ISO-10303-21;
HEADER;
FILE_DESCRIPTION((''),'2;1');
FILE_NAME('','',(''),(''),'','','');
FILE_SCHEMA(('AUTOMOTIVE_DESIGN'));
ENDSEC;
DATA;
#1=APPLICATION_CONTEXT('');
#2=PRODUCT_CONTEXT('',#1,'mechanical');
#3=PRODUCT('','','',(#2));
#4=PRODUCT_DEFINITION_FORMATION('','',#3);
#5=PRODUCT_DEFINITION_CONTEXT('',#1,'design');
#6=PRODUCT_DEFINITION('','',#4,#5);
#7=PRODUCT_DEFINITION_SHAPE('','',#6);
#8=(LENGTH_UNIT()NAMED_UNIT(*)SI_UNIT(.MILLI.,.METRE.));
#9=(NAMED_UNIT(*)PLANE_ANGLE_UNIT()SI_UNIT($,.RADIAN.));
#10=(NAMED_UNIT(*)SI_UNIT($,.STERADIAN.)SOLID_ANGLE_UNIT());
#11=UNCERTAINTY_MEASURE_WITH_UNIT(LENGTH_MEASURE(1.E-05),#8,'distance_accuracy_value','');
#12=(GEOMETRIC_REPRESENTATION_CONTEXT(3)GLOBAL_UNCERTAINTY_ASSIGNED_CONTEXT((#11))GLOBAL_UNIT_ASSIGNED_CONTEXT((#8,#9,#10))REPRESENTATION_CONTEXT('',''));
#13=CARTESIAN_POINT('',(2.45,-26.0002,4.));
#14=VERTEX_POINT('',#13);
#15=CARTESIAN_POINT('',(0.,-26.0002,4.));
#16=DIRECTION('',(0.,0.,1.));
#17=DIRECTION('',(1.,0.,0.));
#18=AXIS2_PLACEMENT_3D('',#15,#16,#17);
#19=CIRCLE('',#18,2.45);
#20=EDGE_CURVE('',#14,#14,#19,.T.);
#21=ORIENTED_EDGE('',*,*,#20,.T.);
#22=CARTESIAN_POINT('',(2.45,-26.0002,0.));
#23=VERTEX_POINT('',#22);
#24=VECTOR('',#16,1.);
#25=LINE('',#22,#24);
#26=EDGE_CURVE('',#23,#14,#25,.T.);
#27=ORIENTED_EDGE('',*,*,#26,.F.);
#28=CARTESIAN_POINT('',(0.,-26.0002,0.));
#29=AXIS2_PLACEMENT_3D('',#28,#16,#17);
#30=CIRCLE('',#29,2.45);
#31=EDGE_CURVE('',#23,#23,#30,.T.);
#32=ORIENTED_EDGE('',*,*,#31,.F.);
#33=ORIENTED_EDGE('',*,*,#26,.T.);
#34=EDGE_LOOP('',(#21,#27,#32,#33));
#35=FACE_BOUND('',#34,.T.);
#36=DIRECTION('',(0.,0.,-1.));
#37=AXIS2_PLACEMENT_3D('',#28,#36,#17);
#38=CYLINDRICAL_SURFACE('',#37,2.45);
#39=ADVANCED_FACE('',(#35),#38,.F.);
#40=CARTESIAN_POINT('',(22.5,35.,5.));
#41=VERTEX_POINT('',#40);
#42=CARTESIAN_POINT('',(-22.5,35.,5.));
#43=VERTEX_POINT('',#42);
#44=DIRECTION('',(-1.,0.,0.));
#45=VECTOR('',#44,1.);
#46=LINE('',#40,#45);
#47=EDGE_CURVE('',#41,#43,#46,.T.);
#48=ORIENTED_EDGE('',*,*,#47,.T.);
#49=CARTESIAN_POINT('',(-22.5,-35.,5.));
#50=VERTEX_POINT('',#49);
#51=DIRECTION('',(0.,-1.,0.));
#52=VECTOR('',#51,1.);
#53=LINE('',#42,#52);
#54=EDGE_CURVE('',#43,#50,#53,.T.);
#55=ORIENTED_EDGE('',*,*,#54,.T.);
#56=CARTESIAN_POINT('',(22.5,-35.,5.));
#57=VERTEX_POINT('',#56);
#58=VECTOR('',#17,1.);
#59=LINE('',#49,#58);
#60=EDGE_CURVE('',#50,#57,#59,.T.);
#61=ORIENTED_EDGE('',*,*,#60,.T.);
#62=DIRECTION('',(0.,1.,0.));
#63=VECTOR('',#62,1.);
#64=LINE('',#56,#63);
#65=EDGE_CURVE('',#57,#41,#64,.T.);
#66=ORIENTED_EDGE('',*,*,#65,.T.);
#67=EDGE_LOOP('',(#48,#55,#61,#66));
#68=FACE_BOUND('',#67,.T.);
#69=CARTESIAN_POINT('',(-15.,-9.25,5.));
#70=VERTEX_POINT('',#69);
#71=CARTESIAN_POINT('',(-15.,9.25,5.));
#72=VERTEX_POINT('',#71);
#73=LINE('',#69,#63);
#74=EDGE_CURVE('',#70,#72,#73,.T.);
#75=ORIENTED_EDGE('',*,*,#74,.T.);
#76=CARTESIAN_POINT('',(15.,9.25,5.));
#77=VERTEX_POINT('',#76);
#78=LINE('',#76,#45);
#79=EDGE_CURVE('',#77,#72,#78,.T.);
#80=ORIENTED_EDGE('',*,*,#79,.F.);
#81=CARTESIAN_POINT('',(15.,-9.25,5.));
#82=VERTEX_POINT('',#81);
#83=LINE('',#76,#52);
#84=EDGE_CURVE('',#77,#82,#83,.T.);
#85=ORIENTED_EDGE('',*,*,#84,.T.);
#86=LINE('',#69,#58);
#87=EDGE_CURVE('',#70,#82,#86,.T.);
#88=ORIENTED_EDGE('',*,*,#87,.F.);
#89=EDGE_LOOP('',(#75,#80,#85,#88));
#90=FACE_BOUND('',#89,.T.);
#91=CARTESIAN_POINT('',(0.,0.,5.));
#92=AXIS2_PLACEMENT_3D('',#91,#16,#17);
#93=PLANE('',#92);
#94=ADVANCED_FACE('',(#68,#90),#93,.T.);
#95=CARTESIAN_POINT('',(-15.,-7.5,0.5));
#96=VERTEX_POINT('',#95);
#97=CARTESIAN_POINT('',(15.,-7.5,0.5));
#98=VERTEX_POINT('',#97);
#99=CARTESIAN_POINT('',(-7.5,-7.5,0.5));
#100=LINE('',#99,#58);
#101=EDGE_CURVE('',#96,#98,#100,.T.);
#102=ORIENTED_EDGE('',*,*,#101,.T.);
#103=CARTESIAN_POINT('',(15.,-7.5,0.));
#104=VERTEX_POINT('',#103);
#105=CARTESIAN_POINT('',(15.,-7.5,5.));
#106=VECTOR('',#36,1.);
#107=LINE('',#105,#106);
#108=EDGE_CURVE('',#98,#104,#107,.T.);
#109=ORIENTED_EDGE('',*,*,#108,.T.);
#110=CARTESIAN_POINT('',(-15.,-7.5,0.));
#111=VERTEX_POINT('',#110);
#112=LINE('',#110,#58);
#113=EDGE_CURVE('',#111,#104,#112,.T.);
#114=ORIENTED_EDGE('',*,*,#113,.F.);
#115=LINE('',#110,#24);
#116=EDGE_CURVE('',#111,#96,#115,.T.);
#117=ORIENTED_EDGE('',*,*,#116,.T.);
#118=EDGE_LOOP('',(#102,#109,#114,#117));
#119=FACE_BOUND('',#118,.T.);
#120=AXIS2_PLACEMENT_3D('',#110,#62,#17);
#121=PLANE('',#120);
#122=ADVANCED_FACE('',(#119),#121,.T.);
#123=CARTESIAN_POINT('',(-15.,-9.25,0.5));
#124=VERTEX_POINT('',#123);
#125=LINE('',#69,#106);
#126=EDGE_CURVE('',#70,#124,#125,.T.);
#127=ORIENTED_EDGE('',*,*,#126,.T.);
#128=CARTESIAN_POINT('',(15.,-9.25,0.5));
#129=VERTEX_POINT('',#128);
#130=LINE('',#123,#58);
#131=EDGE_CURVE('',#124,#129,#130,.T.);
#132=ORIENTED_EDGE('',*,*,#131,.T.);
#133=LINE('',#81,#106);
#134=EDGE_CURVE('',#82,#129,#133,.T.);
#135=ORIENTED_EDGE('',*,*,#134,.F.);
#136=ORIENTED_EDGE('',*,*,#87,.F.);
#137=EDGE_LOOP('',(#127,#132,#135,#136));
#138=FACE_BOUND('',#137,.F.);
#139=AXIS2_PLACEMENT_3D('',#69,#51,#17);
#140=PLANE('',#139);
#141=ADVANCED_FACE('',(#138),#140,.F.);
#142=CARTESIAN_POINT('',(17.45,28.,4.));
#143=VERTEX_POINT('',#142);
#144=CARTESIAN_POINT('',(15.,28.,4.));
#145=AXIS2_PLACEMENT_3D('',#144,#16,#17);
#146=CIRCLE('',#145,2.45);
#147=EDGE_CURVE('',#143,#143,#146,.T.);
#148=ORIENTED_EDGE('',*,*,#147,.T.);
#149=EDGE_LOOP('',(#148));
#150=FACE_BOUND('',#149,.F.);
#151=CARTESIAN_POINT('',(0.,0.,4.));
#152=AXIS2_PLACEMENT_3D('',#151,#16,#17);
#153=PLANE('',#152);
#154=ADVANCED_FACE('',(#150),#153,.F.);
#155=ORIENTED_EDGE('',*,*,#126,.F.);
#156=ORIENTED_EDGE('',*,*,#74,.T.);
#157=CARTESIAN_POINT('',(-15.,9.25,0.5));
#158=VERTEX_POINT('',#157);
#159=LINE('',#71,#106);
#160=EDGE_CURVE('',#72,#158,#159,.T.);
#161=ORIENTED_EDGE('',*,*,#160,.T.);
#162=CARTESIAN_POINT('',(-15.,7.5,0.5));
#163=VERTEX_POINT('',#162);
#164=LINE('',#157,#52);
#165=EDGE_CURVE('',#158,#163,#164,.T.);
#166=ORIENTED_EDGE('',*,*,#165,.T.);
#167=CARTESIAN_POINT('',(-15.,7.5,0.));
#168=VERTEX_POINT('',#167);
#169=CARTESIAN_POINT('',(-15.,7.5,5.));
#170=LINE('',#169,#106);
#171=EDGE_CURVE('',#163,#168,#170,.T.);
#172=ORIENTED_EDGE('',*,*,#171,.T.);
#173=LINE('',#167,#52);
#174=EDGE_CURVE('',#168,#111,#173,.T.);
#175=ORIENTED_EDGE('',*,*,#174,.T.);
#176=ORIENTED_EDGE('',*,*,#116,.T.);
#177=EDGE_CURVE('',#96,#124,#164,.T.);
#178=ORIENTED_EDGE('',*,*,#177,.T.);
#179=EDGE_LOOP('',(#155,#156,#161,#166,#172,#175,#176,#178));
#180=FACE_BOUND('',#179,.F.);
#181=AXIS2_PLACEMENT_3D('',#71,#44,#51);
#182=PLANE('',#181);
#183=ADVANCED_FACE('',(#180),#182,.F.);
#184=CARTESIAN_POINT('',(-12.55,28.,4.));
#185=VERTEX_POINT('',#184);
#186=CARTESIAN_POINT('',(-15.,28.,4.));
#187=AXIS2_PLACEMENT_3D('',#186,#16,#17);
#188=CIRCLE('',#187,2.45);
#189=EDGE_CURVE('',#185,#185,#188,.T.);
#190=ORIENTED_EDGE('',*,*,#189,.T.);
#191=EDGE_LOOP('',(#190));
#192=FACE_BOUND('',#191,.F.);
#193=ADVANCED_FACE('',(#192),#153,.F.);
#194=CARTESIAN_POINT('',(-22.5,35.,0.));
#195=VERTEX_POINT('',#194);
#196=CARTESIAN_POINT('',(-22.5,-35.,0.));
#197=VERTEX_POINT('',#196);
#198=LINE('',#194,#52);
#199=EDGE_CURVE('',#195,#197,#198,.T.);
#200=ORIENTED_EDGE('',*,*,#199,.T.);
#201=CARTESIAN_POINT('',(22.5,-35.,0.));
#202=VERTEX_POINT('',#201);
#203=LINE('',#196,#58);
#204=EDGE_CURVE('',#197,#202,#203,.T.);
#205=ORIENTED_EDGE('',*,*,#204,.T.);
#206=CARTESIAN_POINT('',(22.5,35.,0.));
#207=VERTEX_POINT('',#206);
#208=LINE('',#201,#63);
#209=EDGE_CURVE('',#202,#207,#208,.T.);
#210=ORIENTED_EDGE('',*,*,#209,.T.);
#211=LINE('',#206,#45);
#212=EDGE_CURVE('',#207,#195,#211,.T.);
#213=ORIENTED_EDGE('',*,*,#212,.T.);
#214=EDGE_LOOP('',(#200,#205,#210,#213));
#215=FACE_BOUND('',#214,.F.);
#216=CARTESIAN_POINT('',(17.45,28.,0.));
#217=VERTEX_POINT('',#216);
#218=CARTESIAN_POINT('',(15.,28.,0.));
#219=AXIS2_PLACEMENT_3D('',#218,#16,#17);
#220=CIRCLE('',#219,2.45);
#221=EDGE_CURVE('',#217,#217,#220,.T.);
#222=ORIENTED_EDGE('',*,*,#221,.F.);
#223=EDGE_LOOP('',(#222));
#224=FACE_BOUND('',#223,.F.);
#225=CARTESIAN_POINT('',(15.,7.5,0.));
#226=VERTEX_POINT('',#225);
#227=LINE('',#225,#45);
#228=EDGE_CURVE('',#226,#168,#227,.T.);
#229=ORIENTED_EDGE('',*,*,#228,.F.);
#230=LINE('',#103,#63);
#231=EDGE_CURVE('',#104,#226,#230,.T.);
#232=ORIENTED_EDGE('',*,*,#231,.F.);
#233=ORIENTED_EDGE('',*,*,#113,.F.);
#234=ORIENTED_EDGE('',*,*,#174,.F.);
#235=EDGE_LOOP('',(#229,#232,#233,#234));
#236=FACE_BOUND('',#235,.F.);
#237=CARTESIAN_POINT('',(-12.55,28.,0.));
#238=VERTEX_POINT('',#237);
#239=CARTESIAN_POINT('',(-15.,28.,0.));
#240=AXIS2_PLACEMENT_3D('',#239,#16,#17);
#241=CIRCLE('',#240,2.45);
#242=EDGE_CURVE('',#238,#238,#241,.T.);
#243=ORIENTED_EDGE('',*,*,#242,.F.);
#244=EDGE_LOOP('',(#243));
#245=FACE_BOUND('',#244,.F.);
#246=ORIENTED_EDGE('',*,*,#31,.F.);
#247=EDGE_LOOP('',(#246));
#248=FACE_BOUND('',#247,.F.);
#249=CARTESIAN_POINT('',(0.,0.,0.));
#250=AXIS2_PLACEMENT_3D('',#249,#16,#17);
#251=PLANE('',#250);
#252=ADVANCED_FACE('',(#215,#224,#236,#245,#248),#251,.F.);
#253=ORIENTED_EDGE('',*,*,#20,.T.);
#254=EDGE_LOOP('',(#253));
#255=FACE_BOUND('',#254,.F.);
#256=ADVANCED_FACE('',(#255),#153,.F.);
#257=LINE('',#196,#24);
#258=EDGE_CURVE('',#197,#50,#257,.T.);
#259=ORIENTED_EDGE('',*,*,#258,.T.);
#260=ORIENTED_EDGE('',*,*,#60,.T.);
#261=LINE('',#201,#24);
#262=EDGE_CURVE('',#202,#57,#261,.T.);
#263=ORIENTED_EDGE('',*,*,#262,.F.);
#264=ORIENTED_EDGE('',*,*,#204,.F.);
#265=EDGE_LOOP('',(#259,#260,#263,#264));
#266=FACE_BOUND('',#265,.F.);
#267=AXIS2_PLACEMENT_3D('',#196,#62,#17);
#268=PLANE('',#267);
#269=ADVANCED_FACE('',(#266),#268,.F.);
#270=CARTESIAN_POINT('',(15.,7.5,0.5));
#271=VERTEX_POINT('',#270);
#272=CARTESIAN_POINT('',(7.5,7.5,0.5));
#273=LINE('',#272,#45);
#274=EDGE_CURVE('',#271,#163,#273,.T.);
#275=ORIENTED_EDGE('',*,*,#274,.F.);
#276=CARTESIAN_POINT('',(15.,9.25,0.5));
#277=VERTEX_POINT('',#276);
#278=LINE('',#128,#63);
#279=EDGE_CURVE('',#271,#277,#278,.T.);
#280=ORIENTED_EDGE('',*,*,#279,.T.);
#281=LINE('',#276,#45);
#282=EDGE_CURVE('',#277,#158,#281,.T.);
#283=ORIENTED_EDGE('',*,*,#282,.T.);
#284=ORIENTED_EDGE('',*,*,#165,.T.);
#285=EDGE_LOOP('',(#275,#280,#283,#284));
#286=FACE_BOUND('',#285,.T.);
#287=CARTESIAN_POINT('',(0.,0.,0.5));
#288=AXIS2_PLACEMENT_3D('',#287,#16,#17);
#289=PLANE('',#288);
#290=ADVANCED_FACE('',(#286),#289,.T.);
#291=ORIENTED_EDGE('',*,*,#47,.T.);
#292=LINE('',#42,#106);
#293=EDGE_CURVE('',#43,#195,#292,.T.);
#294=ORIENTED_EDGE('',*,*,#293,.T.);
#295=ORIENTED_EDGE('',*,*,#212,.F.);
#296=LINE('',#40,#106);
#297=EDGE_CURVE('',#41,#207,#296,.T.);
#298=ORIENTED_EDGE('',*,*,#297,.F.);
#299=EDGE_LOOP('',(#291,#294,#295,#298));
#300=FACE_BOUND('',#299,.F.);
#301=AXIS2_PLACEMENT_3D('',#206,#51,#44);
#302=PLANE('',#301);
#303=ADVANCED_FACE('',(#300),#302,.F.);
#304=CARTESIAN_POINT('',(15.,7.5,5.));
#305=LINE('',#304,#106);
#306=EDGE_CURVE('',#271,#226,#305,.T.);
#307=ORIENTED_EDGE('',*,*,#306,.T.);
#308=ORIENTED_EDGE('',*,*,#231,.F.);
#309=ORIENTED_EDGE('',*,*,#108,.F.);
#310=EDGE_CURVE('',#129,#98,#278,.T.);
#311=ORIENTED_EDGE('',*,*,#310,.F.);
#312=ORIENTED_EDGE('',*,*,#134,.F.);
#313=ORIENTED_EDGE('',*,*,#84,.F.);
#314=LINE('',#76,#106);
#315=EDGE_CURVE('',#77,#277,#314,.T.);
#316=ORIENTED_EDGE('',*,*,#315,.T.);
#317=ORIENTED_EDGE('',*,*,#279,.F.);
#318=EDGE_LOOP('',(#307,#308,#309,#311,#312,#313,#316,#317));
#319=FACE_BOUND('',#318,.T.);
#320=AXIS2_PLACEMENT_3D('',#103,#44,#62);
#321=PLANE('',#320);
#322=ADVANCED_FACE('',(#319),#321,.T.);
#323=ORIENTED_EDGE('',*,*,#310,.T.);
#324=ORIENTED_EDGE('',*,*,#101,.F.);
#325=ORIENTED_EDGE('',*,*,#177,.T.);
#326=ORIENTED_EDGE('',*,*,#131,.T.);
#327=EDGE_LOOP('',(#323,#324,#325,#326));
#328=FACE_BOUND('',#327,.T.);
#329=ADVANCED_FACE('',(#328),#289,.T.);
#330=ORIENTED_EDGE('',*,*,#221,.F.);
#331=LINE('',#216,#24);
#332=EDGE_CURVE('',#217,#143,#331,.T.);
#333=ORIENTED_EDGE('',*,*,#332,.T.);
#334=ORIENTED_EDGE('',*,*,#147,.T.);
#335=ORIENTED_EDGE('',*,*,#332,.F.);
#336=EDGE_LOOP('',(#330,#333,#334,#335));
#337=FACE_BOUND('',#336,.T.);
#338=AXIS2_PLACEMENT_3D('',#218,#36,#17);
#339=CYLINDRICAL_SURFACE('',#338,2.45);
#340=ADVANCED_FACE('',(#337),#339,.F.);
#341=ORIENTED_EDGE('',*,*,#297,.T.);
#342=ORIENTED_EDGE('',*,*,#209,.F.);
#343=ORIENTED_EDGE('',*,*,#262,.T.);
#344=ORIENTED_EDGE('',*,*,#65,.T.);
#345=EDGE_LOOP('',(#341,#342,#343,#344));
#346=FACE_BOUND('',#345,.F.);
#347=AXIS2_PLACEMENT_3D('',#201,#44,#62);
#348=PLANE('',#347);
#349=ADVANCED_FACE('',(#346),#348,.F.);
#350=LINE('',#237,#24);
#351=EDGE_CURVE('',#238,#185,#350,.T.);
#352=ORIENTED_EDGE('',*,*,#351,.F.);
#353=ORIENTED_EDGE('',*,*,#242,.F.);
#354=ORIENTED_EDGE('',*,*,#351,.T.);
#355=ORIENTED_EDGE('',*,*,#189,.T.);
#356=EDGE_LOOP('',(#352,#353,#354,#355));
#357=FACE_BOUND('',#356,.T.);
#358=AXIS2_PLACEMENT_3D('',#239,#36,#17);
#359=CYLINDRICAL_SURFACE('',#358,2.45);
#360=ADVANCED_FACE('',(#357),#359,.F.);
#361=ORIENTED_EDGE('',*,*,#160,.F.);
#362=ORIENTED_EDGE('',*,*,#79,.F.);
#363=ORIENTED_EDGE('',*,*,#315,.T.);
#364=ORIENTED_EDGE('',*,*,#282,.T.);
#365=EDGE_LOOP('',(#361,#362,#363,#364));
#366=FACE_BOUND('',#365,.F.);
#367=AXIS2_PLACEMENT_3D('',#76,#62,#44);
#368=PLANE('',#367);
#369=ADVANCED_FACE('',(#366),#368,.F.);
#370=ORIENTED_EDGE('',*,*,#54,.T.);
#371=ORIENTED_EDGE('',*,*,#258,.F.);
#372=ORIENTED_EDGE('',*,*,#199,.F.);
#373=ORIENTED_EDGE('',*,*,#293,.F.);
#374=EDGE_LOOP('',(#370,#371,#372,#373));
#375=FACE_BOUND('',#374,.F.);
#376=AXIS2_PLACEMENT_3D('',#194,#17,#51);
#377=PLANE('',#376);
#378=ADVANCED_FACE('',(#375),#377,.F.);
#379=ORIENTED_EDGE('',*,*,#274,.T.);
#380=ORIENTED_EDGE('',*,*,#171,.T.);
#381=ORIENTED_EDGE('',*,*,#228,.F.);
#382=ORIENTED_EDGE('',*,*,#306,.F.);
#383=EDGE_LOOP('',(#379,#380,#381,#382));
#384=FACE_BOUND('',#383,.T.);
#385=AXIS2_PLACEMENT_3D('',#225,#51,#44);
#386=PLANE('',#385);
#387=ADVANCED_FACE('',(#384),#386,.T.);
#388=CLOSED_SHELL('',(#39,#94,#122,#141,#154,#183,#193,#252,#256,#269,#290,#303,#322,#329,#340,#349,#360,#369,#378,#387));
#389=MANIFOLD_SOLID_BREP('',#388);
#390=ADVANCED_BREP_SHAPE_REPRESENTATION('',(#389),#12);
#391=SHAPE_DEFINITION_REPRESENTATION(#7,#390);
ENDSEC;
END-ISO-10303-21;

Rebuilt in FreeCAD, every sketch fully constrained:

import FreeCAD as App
import Part
import Sketcher

V = App.Vector
Q = App.Units.Quantity


def add_polygon(sketch, points):
    """Adds a closed chain of lines whose ends are joined by coincident constraints."""
    first, n = sketch.GeometryCount, len(points)
    for a, b in zip(points, points[1:] + points[:1]):
        sketch.addGeometry(Part.LineSegment(App.Vector(*a, 0), App.Vector(*b, 0)), False)
    for i in range(n):
        sketch.addConstraint(Sketcher.Constraint("Coincident", first + i, 2, first + (i + 1) % n, 1))

doc = App.newDocument("Part")
body = doc.addObject("PartDesign::Body", "Body")

sketch1 = body.newObject("Sketcher::SketchObject", "Sketch")
sketch1.AttachmentSupport = (doc.getObject("XY_Plane"), [""])
sketch1.MapMode = "FlatFace"
add_polygon(sketch1, [(-22.5, 35), (-22.5, -35), (22.5, -35), (22.5, 35)])
sketch1.addGeometry(Part.Circle(V(0, -26, 0), V(0, 0, 1), 2.5), False)
sketch1.addGeometry(Part.Circle(V(-15, 28, 0), V(0, 0, 1), 2.5), False)
add_polygon(sketch1, [(15, -7.5), (-15, -7.5), (-15, 7.5), (15, 7.5)])
sketch1.addGeometry(Part.Circle(V(15, 28, 0), V(0, 0, 1), 2.5), False)
sketch1.addConstraint([
    Sketcher.Constraint("Vertical", 0),
    Sketcher.Constraint("Horizontal", 1),
    Sketcher.Constraint("Vertical", 2),
    Sketcher.Constraint("Horizontal", 3),
    Sketcher.Constraint("Horizontal", 6),
    Sketcher.Constraint("Vertical", 7),
    Sketcher.Constraint("Horizontal", 8),
    Sketcher.Constraint("Vertical", 9),
    Sketcher.Constraint("Equal", 4, 5),
    Sketcher.Constraint("Equal", 5, 10),
    Sketcher.Constraint("Symmetric", 0, 2, 2, 2, -1, 1),
    Sketcher.Constraint("Symmetric", 6, 2, 8, 2, -1, 1),
    Sketcher.Constraint("Symmetric", 5, 3, 10, 3, -2),
    Sketcher.Constraint("PointOnObject", 4, 3, -2),
    Sketcher.Constraint("Vertical", 5, 3, 6, 2),
    Sketcher.Constraint("DistanceX", 1, 1, 1, 2, Q("45 mm")),
    Sketcher.Constraint("DistanceX", 6, 2, 6, 1, Q("30 mm")),
    Sketcher.Constraint("DistanceY", 0, 2, 0, 1, Q("70 mm")),
    Sketcher.Constraint("DistanceY", 7, 1, 7, 2, Q("15 mm")),
    Sketcher.Constraint("Diameter", 4, Q("4.9 mm")),
    Sketcher.Constraint("DistanceY", -1, 1, 5, 3, Q("28 mm")),
    Sketcher.Constraint("DistanceY", 4, 3, -1, 1, Q("26.0002 mm")),
])
pad1 = body.newObject("PartDesign::Pad", "Pad")
pad1.Profile = sketch1
pad1.Length = 4

sketch2 = body.newObject("Sketcher::SketchObject", "Sketch001")
sketch2.AttachmentSupport = (doc.getObject("XY_Plane"), [""])
sketch2.MapMode = "FlatFace"
sketch2.AttachmentOffset = App.Placement(V(0, 0, 4), App.Rotation())
add_polygon(sketch2, [(-22, 35), (-22, -35), (22, -35), (22, 35)])
add_polygon(sketch2, [(15, -8), (-15, -8), (-15, 8), (15, 8)])
sketch2.addConstraint([
    Sketcher.Constraint("Vertical", 0),
    Sketcher.Constraint("Horizontal", 1),
    Sketcher.Constraint("Vertical", 2),
    Sketcher.Constraint("Horizontal", 3),
    Sketcher.Constraint("Horizontal", 4),
    Sketcher.Constraint("Vertical", 5),
    Sketcher.Constraint("Horizontal", 6),
    Sketcher.Constraint("Vertical", 7),
    Sketcher.Constraint("Symmetric", 0, 2, 2, 2, -1, 1),
    Sketcher.Constraint("Symmetric", 4, 2, 6, 2, -1, 1),
    Sketcher.Constraint("DistanceX", 1, 1, 1, 2, Q("45 mm")),
    Sketcher.Constraint("DistanceX", 4, 2, 4, 1, Q("30 mm")),
    Sketcher.Constraint("DistanceY", 0, 2, 0, 1, Q("70 mm")),
    Sketcher.Constraint("DistanceY", 5, 1, 5, 2, Q("15 mm")),
])
pad2 = body.newObject("PartDesign::Pad", "Pad001")
pad2.Profile = sketch2
pad2.Length = 1

sketch3 = body.newObject("Sketcher::SketchObject", "Sketch002")
sketch3.AttachmentSupport = (doc.getObject("XY_Plane"), [""])
sketch3.MapMode = "FlatFace"
sketch3.AttachmentOffset = App.Placement(V(0, 0, 5), App.Rotation())
add_polygon(sketch3, [(-15, 9), (-15, -9), (15, -9), (15, 9)])
sketch3.addConstraint([
    Sketcher.Constraint("Vertical", 0),
    Sketcher.Constraint("Horizontal", 1),
    Sketcher.Constraint("Vertical", 2),
    Sketcher.Constraint("Horizontal", 3),
    Sketcher.Constraint("Symmetric", 0, 2, 2, 2, -1, 1),
    Sketcher.Constraint("DistanceX", 1, 1, 1, 2, Q("30 mm")),
    Sketcher.Constraint("DistanceY", 0, 2, 0, 1, Q("18.5 mm")),
])
pocket1 = body.newObject("PartDesign::Pocket", "Pocket")
pocket1.Profile = sketch3
pocket1.Length = 4.5

doc.recompute()
